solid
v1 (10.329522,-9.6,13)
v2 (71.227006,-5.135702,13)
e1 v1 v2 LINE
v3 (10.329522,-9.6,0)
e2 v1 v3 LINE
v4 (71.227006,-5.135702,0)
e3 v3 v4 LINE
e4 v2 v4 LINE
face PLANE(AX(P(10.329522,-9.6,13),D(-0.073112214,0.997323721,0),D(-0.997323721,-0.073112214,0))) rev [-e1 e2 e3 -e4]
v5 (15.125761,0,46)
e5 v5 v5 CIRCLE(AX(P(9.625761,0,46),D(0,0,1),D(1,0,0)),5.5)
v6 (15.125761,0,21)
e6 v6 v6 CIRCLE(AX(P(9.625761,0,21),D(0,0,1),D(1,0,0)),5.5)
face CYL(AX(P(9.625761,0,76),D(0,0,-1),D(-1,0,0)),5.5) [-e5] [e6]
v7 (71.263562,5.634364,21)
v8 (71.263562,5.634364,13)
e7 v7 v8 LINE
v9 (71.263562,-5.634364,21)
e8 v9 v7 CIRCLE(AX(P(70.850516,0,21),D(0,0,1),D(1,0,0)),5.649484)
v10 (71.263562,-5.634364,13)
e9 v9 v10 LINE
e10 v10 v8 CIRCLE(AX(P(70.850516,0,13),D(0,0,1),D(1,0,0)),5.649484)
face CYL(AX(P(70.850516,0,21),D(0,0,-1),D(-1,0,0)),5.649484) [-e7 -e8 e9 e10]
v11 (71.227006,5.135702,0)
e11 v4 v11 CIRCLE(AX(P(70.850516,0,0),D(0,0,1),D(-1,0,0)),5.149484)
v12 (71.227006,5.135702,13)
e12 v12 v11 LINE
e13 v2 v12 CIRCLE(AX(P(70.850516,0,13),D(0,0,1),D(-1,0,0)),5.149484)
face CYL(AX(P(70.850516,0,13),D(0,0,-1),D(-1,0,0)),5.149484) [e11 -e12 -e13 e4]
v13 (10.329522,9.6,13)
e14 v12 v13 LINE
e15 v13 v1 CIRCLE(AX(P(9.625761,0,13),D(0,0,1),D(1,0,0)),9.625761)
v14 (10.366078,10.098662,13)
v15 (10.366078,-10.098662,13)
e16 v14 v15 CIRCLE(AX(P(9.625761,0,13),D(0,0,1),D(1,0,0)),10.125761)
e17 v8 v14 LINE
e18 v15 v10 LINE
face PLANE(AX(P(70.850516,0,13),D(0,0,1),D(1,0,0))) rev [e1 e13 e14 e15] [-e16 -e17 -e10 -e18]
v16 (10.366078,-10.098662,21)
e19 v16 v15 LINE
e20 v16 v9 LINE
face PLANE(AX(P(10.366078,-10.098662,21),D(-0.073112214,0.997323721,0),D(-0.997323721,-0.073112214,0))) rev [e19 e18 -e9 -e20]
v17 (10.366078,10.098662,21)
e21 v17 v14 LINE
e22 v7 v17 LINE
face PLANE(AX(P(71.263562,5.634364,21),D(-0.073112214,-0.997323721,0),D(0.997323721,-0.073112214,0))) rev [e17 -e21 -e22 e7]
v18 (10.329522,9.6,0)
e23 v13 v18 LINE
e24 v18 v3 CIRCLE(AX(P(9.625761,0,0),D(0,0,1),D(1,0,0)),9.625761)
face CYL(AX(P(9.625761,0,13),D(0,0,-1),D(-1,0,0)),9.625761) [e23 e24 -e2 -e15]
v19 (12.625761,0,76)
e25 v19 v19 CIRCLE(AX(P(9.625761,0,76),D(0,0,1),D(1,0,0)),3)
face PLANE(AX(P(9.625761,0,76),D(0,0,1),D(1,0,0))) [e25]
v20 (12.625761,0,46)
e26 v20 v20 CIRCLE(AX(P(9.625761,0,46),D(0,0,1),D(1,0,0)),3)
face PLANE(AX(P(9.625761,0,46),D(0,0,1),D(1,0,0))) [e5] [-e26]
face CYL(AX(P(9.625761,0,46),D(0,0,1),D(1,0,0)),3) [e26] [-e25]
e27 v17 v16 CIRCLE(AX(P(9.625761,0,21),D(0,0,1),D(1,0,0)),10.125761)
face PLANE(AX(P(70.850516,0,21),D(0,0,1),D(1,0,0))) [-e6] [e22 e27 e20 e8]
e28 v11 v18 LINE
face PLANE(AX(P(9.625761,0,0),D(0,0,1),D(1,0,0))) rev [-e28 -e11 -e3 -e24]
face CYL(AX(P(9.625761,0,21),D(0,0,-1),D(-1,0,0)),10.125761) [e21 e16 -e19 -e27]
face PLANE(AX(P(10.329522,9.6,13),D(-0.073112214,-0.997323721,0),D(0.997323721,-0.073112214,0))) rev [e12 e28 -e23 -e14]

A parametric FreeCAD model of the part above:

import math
import FreeCAD as App
import Part
import Sketcher
from FreeCAD import Vector

doc = App.newDocument("Part")
body = doc.addObject("PartDesign::Body", "Body")

# Sketch on XY plane
sketch1 = body.newObject("Sketcher::SketchObject", "Sketch")
sketch1.AttachmentSupport = (doc.getObject("XY_Plane"), [""])
sketch1.MapMode = "FlatFace"
sketch1.addGeometry([
    Part.LineSegment(Vector(71.227006, 5.135702, 0), Vector(10.329522, 9.6, 0)),
    Part.ArcOfCircle(Part.Circle(Vector(9.625761, 0, 0), Vector(0, 0, 1), 9.625761), math.radians(85.807238), math.radians(274.192762)),
    Part.LineSegment(Vector(10.329522, -9.6, 0), Vector(71.227006, -5.135702, 0)),
    Part.ArcOfCircle(Part.Circle(Vector(70.850516, 0, 0), Vector(0, 0, 1), 5.149484), math.radians(-85.807238), math.radians(85.807238)),
], False)
sketch1.addConstraint([
    Sketcher.Constraint("Coincident", 0, 2, 1, 1),
    Sketcher.Constraint("Coincident", 1, 2, 2, 1),
    Sketcher.Constraint("Coincident", 2, 2, 3, 1),
    Sketcher.Constraint("Coincident", 3, 2, 0, 1),
    Sketcher.Constraint("PointOnObject", 1, 3, -1),
    Sketcher.Constraint("PointOnObject", 3, 3, -1),
    Sketcher.Constraint("DistanceY", -1, 1, 0, 2, 9.6),
    Sketcher.Constraint("DistanceY", 1, 2, -1, 1, 9.6),
    Sketcher.Constraint("Radius", 1, 9.625761),
    Sketcher.Constraint("Radius", 3, 5.149484),
    Sketcher.Constraint("Distance", 0, 61.0609),
    Sketcher.Constraint("Distance", 2, 61.0609),
    Sketcher.Constraint("DistanceX", -1, 1, 1, 3, 9.625761),
    Sketcher.Constraint("DistanceX", 3, 3, 2, 2, 0.37649),
])
pad1 = body.newObject("PartDesign::Pad", "Pad")
pad1.Profile = sketch1
pad1.Length = 13

# Sketch on XY plane
sketch2 = body.newObject("Sketcher::SketchObject", "Sketch001")
sketch2.AttachmentSupport = (doc.getObject("XY_Plane"), [""])
sketch2.MapMode = "FlatFace"
sketch2.AttachmentOffset = App.Placement(Vector(0, 0, 13), App.Rotation())
sketch2.addGeometry([
    Part.LineSegment(Vector(71, 6, 0), Vector(10, 10, 0)),
    Part.ArcOfCircle(Part.Circle(Vector(10, 0, 0), Vector(0, 0, 1), 10), math.radians(86), math.radians(274)),
    Part.LineSegment(Vector(10, -10, 0), Vector(71, -6, 0)),
    Part.ArcOfCircle(Part.Circle(Vector(71, 0, 0), Vector(0, 0, 1), 6), math.radians(-86), math.radians(86)),
], False)
sketch2.addConstraint([
    Sketcher.Constraint("Tangent", 0, 2, 1, 1),
    Sketcher.Constraint("Tangent", 1, 2, 2, 1),
    Sketcher.Constraint("Tangent", 2, 2, 3, 1),
    Sketcher.Constraint("Tangent", 3, 2, 0, 1),
    Sketcher.Constraint("Symmetric", 0, 2, 1, 2, -1),
    Sketcher.Constraint("Radius", 1, 10.125761),
    Sketcher.Constraint("Radius", 3, 5.649484),
    Sketcher.Constraint("Distance", 0, 61.0609),
    Sketcher.Constraint("DistanceX", -1, 1, 1, 3, 9.625761),
])
pad2 = body.newObject("PartDesign::Pad", "Pad001")
pad2.Profile = sketch2
pad2.Length = 8

# Sketch on XY plane
sketch3 = body.newObject("Sketcher::SketchObject", "Sketch002")
sketch3.AttachmentSupport = (doc.getObject("XY_Plane"), [""])
sketch3.MapMode = "FlatFace"
sketch3.AttachmentOffset = App.Placement(Vector(0, 0, 21), App.Rotation())
sketch3.addGeometry(Part.Circle(Vector(10, 0, 0), Vector(0, 0, 1), 6), False)
sketch3.addConstraint([
    Sketcher.Constraint("PointOnObject", 0, 3, -1),
    Sketcher.Constraint("Diameter", 0, 11.0),
    Sketcher.Constraint("DistanceX", -1, 1, 0, 3, 9.625761),
])
pad3 = body.newObject("PartDesign::Pad", "Pad002")
pad3.Profile = sketch3
pad3.Length = 55

# Sketch on XY plane
sketch4 = body.newObject("Sketcher::SketchObject", "Sketch003")
sketch4.AttachmentSupport = (doc.getObject("XY_Plane"), [""])
sketch4.MapMode = "FlatFace"
sketch4.AttachmentOffset = App.Placement(Vector(0, 0, 46), App.Rotation())
sketch4.addGeometry([
    Part.Circle(Vector(9.6, 0, 0), Vector(0, 0, 1), 5.5),
    Part.Circle(Vector(9.6, 0, 0), Vector(0, 0, 1), 3),
], False)
sketch4.addConstraint([
    Sketcher.Constraint("Coincident", 1, 3, 0, 3),
    Sketcher.Constraint("PointOnObject", 0, 3, -1),
    Sketcher.Constraint("Diameter", 0, 11.0),
    Sketcher.Constraint("Diameter", 1, 6.0),
    Sketcher.Constraint("DistanceX", -1, 1, 0, 3, 9.625761),
])
pocket1 = body.newObject("PartDesign::Pocket", "Pocket")
pocket1.Profile = sketch4
pocket1.Length = 30
pocket1.Reversed = True

doc.recompute()
